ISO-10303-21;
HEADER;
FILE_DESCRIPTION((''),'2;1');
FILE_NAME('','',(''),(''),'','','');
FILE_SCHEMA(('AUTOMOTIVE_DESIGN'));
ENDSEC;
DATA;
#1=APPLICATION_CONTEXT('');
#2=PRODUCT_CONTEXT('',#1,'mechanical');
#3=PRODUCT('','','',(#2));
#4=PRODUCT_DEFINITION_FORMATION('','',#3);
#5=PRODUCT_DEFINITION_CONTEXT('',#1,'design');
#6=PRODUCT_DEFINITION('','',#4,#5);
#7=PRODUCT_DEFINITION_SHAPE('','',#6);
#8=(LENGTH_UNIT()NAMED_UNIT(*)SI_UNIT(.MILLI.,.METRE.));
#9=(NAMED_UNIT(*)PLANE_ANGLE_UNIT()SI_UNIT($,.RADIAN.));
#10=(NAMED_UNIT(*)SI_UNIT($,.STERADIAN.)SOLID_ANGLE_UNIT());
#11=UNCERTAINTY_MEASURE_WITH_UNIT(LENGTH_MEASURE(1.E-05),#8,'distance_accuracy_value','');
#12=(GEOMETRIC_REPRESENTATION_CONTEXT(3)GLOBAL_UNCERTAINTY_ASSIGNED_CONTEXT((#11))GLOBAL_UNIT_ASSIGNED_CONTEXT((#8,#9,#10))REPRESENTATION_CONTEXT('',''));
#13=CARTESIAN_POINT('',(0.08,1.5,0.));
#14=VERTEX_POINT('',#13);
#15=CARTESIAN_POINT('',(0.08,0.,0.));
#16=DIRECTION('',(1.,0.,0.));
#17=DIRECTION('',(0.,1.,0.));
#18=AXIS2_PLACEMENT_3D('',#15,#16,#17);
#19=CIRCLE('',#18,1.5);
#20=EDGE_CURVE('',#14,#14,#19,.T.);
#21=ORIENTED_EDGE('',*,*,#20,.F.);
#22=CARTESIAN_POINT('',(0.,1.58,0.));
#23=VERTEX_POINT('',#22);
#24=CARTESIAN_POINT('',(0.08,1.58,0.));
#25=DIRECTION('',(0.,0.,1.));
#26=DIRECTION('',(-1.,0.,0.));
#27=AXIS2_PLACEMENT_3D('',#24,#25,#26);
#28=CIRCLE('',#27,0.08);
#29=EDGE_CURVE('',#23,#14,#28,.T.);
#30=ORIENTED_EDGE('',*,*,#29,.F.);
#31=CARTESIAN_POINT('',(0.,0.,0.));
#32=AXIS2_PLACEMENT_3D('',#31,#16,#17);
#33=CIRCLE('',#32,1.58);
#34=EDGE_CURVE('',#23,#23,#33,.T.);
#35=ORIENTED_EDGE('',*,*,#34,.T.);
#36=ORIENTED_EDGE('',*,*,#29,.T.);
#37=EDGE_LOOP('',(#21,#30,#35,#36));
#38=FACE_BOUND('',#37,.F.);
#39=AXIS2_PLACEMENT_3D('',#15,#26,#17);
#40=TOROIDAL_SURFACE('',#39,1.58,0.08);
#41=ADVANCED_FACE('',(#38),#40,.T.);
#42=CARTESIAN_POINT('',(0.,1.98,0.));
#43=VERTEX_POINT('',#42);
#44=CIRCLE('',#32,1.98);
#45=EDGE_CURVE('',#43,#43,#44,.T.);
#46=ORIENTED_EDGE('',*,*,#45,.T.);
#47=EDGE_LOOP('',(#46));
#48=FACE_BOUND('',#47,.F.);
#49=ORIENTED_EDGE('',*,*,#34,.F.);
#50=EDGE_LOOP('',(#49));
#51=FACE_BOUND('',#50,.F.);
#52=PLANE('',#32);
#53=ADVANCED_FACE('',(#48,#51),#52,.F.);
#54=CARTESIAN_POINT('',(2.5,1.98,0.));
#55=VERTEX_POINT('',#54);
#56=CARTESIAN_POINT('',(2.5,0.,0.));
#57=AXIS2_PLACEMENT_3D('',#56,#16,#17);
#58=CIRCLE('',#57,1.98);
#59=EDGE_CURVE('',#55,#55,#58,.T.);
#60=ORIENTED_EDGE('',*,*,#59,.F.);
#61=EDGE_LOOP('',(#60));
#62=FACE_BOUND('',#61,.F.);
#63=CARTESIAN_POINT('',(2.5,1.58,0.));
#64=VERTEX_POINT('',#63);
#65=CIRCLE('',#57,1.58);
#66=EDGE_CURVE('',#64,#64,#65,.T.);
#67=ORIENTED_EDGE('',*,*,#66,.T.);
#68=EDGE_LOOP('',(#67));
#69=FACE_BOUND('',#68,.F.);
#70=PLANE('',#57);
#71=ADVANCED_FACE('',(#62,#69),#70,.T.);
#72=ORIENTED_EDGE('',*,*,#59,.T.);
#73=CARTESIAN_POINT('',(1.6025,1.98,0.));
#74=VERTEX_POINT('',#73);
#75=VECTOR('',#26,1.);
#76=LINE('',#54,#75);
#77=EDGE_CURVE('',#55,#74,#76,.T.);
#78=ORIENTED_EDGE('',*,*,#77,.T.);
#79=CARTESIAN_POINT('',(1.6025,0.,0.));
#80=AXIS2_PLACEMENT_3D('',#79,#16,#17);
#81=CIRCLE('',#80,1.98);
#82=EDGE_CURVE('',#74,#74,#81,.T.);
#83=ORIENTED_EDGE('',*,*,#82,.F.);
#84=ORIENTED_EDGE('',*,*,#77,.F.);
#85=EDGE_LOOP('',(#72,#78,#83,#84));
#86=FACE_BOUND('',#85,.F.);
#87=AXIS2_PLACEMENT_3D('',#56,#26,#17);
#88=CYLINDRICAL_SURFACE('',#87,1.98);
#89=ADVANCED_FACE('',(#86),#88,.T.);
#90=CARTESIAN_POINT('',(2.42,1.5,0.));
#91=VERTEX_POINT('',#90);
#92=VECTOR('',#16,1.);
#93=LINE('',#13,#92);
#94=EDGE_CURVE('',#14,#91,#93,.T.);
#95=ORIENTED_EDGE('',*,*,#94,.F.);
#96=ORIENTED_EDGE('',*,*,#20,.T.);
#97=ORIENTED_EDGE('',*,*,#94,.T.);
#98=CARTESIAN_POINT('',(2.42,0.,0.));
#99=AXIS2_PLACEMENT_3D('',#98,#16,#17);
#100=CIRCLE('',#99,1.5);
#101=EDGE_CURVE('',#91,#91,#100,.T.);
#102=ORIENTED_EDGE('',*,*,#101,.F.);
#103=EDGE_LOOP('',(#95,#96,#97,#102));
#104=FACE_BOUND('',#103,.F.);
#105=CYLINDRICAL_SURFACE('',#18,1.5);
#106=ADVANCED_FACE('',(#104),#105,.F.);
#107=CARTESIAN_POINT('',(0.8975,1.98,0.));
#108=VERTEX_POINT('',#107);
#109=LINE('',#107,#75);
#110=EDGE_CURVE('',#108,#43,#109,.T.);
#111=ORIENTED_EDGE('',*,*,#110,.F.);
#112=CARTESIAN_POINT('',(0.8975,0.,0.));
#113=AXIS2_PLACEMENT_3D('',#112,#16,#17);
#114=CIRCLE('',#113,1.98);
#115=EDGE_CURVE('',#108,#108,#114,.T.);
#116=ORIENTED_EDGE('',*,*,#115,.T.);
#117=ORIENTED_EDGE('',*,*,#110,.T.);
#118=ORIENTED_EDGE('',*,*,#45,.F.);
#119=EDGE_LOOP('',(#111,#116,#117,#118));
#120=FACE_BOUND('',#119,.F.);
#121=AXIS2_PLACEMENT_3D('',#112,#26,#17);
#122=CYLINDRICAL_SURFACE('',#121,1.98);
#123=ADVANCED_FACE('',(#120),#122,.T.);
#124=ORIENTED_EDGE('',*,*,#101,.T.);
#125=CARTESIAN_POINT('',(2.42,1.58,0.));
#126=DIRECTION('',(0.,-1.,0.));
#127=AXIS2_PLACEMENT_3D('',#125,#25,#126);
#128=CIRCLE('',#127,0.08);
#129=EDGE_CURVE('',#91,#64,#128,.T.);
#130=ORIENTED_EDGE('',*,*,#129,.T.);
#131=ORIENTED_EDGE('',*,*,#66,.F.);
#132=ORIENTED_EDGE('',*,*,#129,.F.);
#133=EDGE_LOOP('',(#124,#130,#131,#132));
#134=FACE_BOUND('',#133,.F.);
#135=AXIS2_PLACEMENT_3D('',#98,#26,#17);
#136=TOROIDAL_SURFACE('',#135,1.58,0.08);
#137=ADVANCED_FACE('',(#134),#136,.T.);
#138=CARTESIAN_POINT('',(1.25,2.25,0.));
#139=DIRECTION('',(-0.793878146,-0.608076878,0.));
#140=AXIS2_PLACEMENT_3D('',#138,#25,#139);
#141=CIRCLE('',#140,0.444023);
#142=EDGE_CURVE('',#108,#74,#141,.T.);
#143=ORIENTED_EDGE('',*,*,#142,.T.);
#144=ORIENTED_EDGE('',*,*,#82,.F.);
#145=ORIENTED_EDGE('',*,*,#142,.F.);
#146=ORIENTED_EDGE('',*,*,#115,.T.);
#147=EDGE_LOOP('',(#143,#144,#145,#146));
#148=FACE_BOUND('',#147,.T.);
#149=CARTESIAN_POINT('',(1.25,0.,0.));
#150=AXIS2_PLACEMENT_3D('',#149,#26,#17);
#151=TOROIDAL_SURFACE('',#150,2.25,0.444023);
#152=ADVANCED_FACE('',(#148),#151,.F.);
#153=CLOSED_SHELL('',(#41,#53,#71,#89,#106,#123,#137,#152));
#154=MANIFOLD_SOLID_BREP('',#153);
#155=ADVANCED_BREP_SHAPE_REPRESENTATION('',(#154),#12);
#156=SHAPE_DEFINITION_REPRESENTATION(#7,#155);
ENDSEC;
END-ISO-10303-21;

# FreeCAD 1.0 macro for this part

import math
import FreeCAD as App
import Part
import Sketcher
Q = App.Units.Quantity

doc = App.newDocument("Part")
body = doc.addObject("PartDesign::Body", "Body")

sketch1 = doc.addObject("Sketcher::SketchObject", "Sketch")
body.addObject(sketch1)
sketch1.AttachmentSupport = (doc.XY_Plane, [""])
sketch1.MapMode = "FlatFace"
sketch1.addGeometry([
    Part.LineSegment(App.Vector(0, 1.98, 0), App.Vector(0, 1.58, 0)),
    Part.ArcOfCircle(Part.Circle(App.Vector(0.08, 1.58, 0), App.Vector(0, 0, 1), 0.08), math.radians(180), math.radians(270)),
    Part.LineSegment(App.Vector(0.08, 1.5, 0), App.Vector(2.42, 1.5, 0)),
    Part.ArcOfCircle(Part.Circle(App.Vector(2.42, 1.58, 0), App.Vector(0, 0, 1), 0.08), math.radians(-90), math.radians(0)),
    Part.LineSegment(App.Vector(2.5, 1.58, 0), App.Vector(2.5, 1.98, 0)),
    Part.LineSegment(App.Vector(2.5, 1.98, 0), App.Vector(1.6, 1.98, 0)),
    Part.ArcOfCircle(Part.Circle(App.Vector(1.25, 2.25, 0), App.Vector(0, 0, 1), 0.44), math.radians(-143), math.radians(-37)),
    Part.LineSegment(App.Vector(0.9, 1.98, 0), App.Vector(0, 1.98, 0)),
], False)
sketch1.addConstraint([
    Sketcher.Constraint("Tangent", 0, 2, 1, 1),
    Sketcher.Constraint("Tangent", 1, 2, 2, 1),
    Sketcher.Constraint("Tangent", 2, 2, 3, 1),
    Sketcher.Constraint("Tangent", 3, 2, 4, 1),
    Sketcher.Constraint("Coincident", 4, 2, 5, 1),
    Sketcher.Constraint("Coincident", 5, 2, 6, 2),
    Sketcher.Constraint("Coincident", 6, 1, 7, 1),
    Sketcher.Constraint("Coincident", 7, 2, 0, 1),
    Sketcher.Constraint("Vertical", 0),
    Sketcher.Constraint("Horizontal", 2),
    Sketcher.Constraint("Vertical", 4),
    Sketcher.Constraint("Horizontal", 5),
    Sketcher.Constraint("Horizontal", 7),
    Sketcher.Constraint("Equal", 1, 3),
    Sketcher.Constraint("PointOnObject", 0, 2, -2),
    Sketcher.Constraint("Horizontal", 5, 2, 6, 1),
    Sketcher.Constraint("Equal", 5, 7),
    Sketcher.Constraint("Radius", 1, Q("0.08 mm")),
    Sketcher.Constraint("DistanceY", 0, 2, 0, 1, Q("0.4 mm")),
    Sketcher.Constraint("Radius", 6, Q("0.444 mm")),
    Sketcher.Constraint("DistanceX", 2, 1, 2, 2, Q("2.34 mm")),
    Sketcher.Constraint("DistanceY", -1, 1, 1, 2, Q("1.5 mm")),
    Sketcher.Constraint("DistanceY", -1, 1, 6, 3, Q("2.25 mm")),
])
revolution = doc.addObject("PartDesign::Revolution", "Revolution")
body.addObject(revolution)
revolution.Profile = sketch1
revolution.ReferenceAxis = (sketch1, ["H_Axis"])
revolution.Angle = 360

doc.recompute()
